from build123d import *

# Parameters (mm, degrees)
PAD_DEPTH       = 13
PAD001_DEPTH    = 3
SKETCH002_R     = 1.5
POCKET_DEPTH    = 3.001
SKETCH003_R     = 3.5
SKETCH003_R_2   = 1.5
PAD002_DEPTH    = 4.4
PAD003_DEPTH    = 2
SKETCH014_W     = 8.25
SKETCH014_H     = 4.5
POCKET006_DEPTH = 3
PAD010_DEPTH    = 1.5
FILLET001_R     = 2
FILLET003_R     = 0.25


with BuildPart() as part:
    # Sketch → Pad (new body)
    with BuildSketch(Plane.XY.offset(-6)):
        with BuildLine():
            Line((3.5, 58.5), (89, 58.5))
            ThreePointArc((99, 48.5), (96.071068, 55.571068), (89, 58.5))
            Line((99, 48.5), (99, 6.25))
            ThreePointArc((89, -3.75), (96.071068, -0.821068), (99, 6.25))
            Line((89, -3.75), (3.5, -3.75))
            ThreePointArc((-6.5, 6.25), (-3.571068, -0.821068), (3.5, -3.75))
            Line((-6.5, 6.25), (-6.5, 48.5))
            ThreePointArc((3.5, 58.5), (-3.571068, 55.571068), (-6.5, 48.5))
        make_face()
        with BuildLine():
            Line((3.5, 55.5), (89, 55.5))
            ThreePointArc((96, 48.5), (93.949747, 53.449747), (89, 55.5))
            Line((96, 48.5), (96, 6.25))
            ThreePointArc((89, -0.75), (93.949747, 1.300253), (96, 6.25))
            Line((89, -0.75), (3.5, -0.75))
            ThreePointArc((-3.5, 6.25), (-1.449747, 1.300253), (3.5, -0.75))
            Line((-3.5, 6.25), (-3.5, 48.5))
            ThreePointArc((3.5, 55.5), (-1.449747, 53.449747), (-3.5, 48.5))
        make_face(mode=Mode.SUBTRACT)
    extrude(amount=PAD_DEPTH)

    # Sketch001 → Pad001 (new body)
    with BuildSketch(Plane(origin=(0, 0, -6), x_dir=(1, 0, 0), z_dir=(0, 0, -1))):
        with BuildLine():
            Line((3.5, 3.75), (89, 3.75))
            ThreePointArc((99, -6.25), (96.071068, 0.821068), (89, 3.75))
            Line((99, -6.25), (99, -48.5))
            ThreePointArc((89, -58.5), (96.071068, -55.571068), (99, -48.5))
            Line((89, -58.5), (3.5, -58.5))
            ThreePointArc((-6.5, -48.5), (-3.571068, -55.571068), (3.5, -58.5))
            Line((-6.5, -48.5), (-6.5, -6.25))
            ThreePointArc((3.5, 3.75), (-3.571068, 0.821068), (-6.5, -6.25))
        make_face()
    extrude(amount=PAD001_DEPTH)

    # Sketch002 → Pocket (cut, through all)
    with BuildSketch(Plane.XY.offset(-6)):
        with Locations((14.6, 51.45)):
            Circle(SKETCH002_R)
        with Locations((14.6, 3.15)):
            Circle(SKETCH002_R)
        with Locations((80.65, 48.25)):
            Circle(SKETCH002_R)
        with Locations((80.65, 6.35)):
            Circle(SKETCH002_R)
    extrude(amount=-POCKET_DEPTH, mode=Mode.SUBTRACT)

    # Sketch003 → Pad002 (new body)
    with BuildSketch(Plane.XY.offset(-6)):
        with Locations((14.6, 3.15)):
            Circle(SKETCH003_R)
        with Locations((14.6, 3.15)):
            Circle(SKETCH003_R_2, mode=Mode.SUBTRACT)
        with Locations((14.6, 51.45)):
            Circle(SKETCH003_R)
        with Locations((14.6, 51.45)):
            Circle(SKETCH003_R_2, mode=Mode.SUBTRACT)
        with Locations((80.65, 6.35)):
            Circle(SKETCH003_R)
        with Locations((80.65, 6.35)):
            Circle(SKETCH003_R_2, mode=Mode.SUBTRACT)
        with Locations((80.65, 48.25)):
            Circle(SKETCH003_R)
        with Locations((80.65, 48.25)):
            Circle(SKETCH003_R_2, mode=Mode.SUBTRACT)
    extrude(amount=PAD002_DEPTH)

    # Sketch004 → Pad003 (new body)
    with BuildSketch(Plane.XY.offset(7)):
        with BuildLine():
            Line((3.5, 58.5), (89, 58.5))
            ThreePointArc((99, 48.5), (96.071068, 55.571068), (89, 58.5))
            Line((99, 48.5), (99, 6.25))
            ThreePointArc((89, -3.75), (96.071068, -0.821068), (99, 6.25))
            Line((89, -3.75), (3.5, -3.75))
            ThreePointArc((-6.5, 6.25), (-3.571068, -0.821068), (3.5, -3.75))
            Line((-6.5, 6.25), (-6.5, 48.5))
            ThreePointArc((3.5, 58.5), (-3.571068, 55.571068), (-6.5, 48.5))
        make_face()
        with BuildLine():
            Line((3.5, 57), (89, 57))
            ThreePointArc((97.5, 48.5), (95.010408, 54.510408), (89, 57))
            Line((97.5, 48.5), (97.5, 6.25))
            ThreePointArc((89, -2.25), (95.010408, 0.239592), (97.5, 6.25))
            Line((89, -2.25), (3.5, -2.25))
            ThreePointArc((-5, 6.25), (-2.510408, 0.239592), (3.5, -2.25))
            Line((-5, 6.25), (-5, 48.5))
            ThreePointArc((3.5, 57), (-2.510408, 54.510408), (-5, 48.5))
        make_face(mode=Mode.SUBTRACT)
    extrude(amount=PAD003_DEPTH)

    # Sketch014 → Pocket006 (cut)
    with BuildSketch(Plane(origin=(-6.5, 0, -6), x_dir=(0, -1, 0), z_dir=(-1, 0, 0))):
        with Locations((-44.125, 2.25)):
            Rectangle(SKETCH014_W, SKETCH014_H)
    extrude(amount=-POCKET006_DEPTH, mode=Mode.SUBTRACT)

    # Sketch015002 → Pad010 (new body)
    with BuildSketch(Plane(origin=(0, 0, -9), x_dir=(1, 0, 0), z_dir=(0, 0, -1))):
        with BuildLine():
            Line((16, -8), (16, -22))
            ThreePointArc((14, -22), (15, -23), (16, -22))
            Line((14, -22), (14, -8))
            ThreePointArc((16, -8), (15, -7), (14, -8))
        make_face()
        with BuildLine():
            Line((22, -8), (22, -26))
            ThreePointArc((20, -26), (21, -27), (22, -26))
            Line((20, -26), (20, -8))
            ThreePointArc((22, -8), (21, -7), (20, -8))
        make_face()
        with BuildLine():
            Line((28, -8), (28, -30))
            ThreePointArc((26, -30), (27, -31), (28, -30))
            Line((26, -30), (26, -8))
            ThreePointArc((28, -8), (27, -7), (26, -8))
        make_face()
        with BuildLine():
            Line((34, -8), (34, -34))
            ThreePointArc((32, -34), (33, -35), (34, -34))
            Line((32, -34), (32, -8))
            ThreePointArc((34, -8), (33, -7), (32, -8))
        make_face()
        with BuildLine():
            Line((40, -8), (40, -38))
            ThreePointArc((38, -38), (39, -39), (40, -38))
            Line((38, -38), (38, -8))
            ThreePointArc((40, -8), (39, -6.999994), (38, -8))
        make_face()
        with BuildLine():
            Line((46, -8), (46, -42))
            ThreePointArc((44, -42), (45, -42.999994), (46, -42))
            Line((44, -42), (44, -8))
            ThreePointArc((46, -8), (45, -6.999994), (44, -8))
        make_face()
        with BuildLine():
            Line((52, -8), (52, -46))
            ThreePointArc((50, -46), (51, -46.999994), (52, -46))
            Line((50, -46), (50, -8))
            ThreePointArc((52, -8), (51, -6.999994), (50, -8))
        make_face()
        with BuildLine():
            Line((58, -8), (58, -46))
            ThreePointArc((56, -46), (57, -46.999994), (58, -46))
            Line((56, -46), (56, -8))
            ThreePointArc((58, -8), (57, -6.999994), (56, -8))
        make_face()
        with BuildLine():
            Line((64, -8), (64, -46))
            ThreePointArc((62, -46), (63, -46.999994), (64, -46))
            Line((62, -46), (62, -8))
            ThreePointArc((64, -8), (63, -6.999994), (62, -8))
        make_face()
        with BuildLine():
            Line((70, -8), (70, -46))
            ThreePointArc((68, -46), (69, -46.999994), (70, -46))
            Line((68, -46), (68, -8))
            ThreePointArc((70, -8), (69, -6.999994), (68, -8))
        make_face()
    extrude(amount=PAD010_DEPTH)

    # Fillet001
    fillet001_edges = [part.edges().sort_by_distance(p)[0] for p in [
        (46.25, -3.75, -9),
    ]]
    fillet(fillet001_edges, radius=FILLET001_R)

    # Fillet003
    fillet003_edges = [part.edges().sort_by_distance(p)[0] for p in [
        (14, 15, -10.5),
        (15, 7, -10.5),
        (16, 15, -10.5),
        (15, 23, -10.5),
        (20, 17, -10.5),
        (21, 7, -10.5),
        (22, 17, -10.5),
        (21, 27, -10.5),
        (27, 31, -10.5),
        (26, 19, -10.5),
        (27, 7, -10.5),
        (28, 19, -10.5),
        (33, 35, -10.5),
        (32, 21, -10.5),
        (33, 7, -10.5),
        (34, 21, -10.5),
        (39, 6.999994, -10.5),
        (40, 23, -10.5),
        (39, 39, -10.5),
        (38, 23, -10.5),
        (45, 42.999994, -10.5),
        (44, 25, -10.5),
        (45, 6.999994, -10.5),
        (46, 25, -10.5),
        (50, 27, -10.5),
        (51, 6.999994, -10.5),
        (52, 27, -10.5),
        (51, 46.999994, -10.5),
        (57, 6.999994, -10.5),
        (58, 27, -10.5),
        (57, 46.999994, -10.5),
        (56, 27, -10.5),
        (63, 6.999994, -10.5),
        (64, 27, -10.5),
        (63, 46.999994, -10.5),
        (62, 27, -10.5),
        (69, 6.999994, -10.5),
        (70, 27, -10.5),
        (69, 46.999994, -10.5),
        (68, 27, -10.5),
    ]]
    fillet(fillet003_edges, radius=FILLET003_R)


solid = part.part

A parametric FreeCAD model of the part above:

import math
import FreeCAD as App
import Part
import Sketcher
from FreeCAD import Vector
Q = App.Units.Quantity


def edges_at(feature, points):
    """Names of the edges that pass closest to the given points."""
    edges = feature.Shape.Edges
    near = lambda p: min(range(len(edges)), key=lambda i: edges[i].distToShape(Part.Vertex(*p))[0])
    return sorted({f"Edge{near(p) + 1}" for p in points})


def add_polygon(sketch, points):
    """Adds a closed chain of lines whose ends are joined by coincident constraints."""
    first, n = sketch.GeometryCount, len(points)
    for a, b in zip(points, points[1:] + points[:1]):
        sketch.addGeometry(Part.LineSegment(App.Vector(*a, 0), App.Vector(*b, 0)), False)
    for i in range(n):
        sketch.addConstraint(Sketcher.Constraint("Coincident", first + i, 2, first + (i + 1) % n, 1))

doc = App.newDocument("Part")
body = doc.addObject("PartDesign::Body", "Body")

# Sketch on XY plane
sketch1 = body.newObject("Sketcher::SketchObject", "Sketch")
sketch1.AttachmentSupport = (doc.getObject("XY_Plane"), [""])
sketch1.MapMode = "FlatFace"
sketch1.AttachmentOffset = App.Placement(Vector(0, 0, -6), App.Rotation())
sketch1.addGeometry([
    Part.LineSegment(Vector(89, 58, 0), Vector(4, 58, 0)),  # 0
    Part.ArcOfCircle(Part.Circle(Vector(3, 49, 0), Vector(0, 0, 1), 10), math.radians(90), math.radians(180)),  # 1
    Part.LineSegment(Vector(-6, 48, 0), Vector(-6, 6, 0)),  # 2
    Part.ArcOfCircle(Part.Circle(Vector(3, 6, 0), Vector(0, 0, 1), 10), math.radians(180), math.radians(270)),  # 3
    Part.LineSegment(Vector(4, -4, 0), Vector(89, -4, 0)),  # 4
    Part.ArcOfCircle(Part.Circle(Vector(89, 6, 0), Vector(0, 0, 1), 10), math.radians(-90), math.radians(0)),  # 5
    Part.LineSegment(Vector(99, 6, 0), Vector(99, 48, 0)),  # 6
    Part.ArcOfCircle(Part.Circle(Vector(89, 49, 0), Vector(0, 0, 1), 10), math.radians(0), math.radians(90)),  # 7
    Part.LineSegment(Vector(4, 56, 0), Vector(89, 56, 0)),  # 8
    Part.ArcOfCircle(Part.Circle(Vector(89, 48, 0), Vector(0, 0, 1), 7), math.radians(0), math.radians(90)),  # 9
    Part.LineSegment(Vector(96, 48, 0), Vector(96, 6, 0)),  # 10
    Part.ArcOfCircle(Part.Circle(Vector(89, 6, 0), Vector(0, 0, 1), 7), math.radians(-90), math.radians(0)),  # 11
    Part.LineSegment(Vector(89, -1, 0), Vector(4, -1, 0)),  # 12
    Part.ArcOfCircle(Part.Circle(Vector(4, 6, 0), Vector(0, 0, 1), 7), math.radians(-180), math.radians(-90)),  # 13
    Part.LineSegment(Vector(-4, 6, 0), Vector(-4, 48, 0)),  # 14
    Part.ArcOfCircle(Part.Circle(Vector(4, 48, 0), Vector(0, 0, 1), 7), math.radians(90), math.radians(180)),  # 15
], False)
sketch1.addConstraint([
    Sketcher.Constraint("Tangent", 0, 2, 1, 1),
    Sketcher.Constraint("Tangent", 1, 2, 2, 1),
    Sketcher.Constraint("Tangent", 2, 2, 3, 1),
    Sketcher.Constraint("Tangent", 3, 2, 4, 1),
    Sketcher.Constraint("Tangent", 4, 2, 5, 1),
    Sketcher.Constraint("Tangent", 5, 2, 6, 1),
    Sketcher.Constraint("Tangent", 6, 2, 7, 1),
    Sketcher.Constraint("Tangent", 7, 2, 0, 1),
    Sketcher.Constraint("Tangent", 8, 2, 9, 2),
    Sketcher.Constraint("Tangent", 9, 1, 10, 1),
    Sketcher.Constraint("Tangent", 10, 2, 11, 2),
    Sketcher.Constraint("Tangent", 11, 1, 12, 1),
    Sketcher.Constraint("Tangent", 12, 2, 13, 2),
    Sketcher.Constraint("Tangent", 13, 1, 14, 1),
    Sketcher.Constraint("Tangent", 14, 2, 15, 2),
    Sketcher.Constraint("Tangent", 15, 1, 8, 1),
    Sketcher.Constraint("Horizontal", 0),
    Sketcher.Constraint("Vertical", 2),
    Sketcher.Constraint("Horizontal", 4),
    Sketcher.Constraint("Vertical", 6),
    Sketcher.Constraint("Horizontal", 8),
    Sketcher.Constraint("Vertical", 10),
    Sketcher.Constraint("Horizontal", 12),
    Sketcher.Constraint("Vertical", 14),
    Sketcher.Constraint("Coincident", 9, 3, 7, 3),
    Sketcher.Constraint("Coincident", 11, 3, 5, 3),
    Sketcher.Constraint("Coincident", 13, 3, 3, 3),
    Sketcher.Constraint("Equal", 1, 3),
    Sketcher.Constraint("Equal", 3, 5),
    Sketcher.Constraint("Equal", 5, 7),
    Sketcher.Constraint("Equal", 13, 15),
    Sketcher.Constraint("Radius", 1, Q("9.999999 mm")),
    Sketcher.Constraint("Radius", 9, Q("7.000002 mm")),
    Sketcher.Constraint("DistanceX", 0, 2, 0, 1, Q("85.5 mm")),
    Sketcher.Constraint("DistanceX", -1, 1, 5, 3, Q("89.000001 mm")),
    Sketcher.Constraint("DistanceY", 2, 2, 2, 1, Q("42.25 mm")),
    Sketcher.Constraint("DistanceY", -1, 1, 1, 3, Q("48.500001 mm")),
])
pad1 = body.newObject("PartDesign::Pad", "Pad")
pad1.Profile = sketch1
pad1.Length = 13

# Sketch on XY plane
sketch2 = body.newObject("Sketcher::SketchObject", "Sketch001")
sketch2.AttachmentSupport = (doc.getObject("XY_Plane"), [""])
sketch2.MapMode = "FlatFace"
sketch2.AttachmentOffset = App.Placement(Vector(0, 0, -6), App.Rotation())
sketch2.addGeometry([
    Part.LineSegment(Vector(89, -4, 0), Vector(4, -4, 0)),  # 0
    Part.ArcOfCircle(Part.Circle(Vector(3, 6, 0), Vector(0, 0, 1), 10), math.radians(180), math.radians(270)),  # 1
    Part.LineSegment(Vector(-6, 6, 0), Vector(-6, 48, 0)),  # 2
    Part.ArcOfCircle(Part.Circle(Vector(3, 49, 0), Vector(0, 0, 1), 10), math.radians(90), math.radians(180)),  # 3
    Part.LineSegment(Vector(4, 58, 0), Vector(89, 58, 0)),  # 4
    Part.ArcOfCircle(Part.Circle(Vector(89, 49, 0), Vector(0, 0, 1), 10), math.radians(0), math.radians(90)),  # 5
    Part.LineSegment(Vector(99, 48, 0), Vector(99, 6, 0)),  # 6
    Part.ArcOfCircle(Part.Circle(Vector(89, 6, 0), Vector(0, 0, 1), 10), math.radians(-90), math.radians(0)),  # 7
], False)
sketch2.addConstraint([
    Sketcher.Constraint("Tangent", 0, 2, 1, 2),
    Sketcher.Constraint("Tangent", 1, 1, 2, 1),
    Sketcher.Constraint("Tangent", 2, 2, 3, 2),
    Sketcher.Constraint("Tangent", 3, 1, 4, 1),
    Sketcher.Constraint("Tangent", 4, 2, 5, 2),
    Sketcher.Constraint("Tangent", 5, 1, 6, 1),
    Sketcher.Constraint("Tangent", 6, 2, 7, 2),
    Sketcher.Constraint("Tangent", 7, 1, 0, 1),
    Sketcher.Constraint("Horizontal", 0),
    Sketcher.Constraint("Vertical", 2),
    Sketcher.Constraint("Horizontal", 4),
    Sketcher.Constraint("Vertical", 6),
    Sketcher.Constraint("Equal", 1, 3),
    Sketcher.Constraint("Equal", 3, 5),
    Sketcher.Constraint("Equal", 5, 7),
    Sketcher.Constraint("Radius", 1, Q("9.999999 mm")),
    Sketcher.Constraint("DistanceX", 0, 2, 0, 1, Q("85.5 mm")),
    Sketcher.Constraint("DistanceX", -1, 1, 5, 3, Q("89.000001 mm")),
    Sketcher.Constraint("DistanceY", 2, 1, 2, 2, Q("42.25 mm")),
    Sketcher.Constraint("DistanceY", -1, 1, 3, 3, Q("48.500001 mm")),
])
pad2 = body.newObject("PartDesign::Pad", "Pad001")
pad2.Profile = sketch2
pad2.Length = 3
pad2.Reversed = True

# Sketch on XY plane
sketch3 = body.newObject("Sketcher::SketchObject", "Sketch002")
sketch3.AttachmentSupport = (doc.getObject("XY_Plane"), [""])
sketch3.MapMode = "FlatFace"
sketch3.AttachmentOffset = App.Placement(Vector(0, 0, -6), App.Rotation())
sketch3.addGeometry([
    Part.Circle(Vector(14.6, 51.5, 0), Vector(0, 0, 1), 1.5),
    Part.Circle(Vector(14.6, 3.1, 0), Vector(0, 0, 1), 1.5),
    Part.Circle(Vector(80.7, 48.2, 0), Vector(0, 0, 1), 1.5),
    Part.Circle(Vector(80.7, 6.3, 0), Vector(0, 0, 1), 1.5),
], False)
sketch3.addConstraint([
    Sketcher.Constraint("Equal", 0, 1),
    Sketcher.Constraint("Equal", 1, 2),
    Sketcher.Constraint("Equal", 2, 3),
    Sketcher.Constraint("Vertical", 0, 3, 1, 3),
    Sketcher.Constraint("Vertical", 2, 3, 3, 3),
    Sketcher.Constraint("Diameter", 0, Q("3 mm")),
    Sketcher.Constraint("DistanceX", -1, 1, 0, 3, Q("14.6 mm")),
    Sketcher.Constraint("DistanceY", 1, 3, 0, 3, Q("48.3 mm")),
    Sketcher.Constraint("DistanceY", 2, 3, 0, 3, Q("3.2 mm")),
    Sketcher.Constraint("DistanceY", 3, 3, 2, 3, Q("41.9 mm")),
    Sketcher.Constraint("DistanceY", -1, 1, 0, 3, Q("51.45 mm")),
    Sketcher.Constraint("DistanceX", -1, 1, 2, 3, Q("80.65 mm")),
])
pocket1 = body.newObject("PartDesign::Pocket", "Pocket")
pocket1.Profile = sketch3
pocket1.Type = "ThroughAll"

# Sketch on XY plane
sketch4 = body.newObject("Sketcher::SketchObject", "Sketch003")
sketch4.AttachmentSupport = (doc.getObject("XY_Plane"), [""])
sketch4.MapMode = "FlatFace"
sketch4.AttachmentOffset = App.Placement(Vector(0, 0, -6), App.Rotation())
sketch4.addGeometry([
    Part.Circle(Vector(14.6, 3.1, 0), Vector(0, 0, 1), 3.5),  # 0
    Part.Circle(Vector(14.6, 3.1, 0), Vector(0, 0, 1), 1.5),  # 1
    Part.Circle(Vector(14.6, 51.5, 0), Vector(0, 0, 1), 3.5),  # 2
    Part.Circle(Vector(14.6, 51.5, 0), Vector(0, 0, 1), 1.5),  # 3
    Part.Circle(Vector(80.7, 6.3, 0), Vector(0, 0, 1), 3.5),  # 4
    Part.Circle(Vector(80.7, 6.3, 0), Vector(0, 0, 1), 1.5),  # 5
    Part.Circle(Vector(80.7, 48.2, 0), Vector(0, 0, 1), 3.5),  # 6
    Part.Circle(Vector(80.7, 48.2, 0), Vector(0, 0, 1), 1.5),  # 7
], False)
sketch4.addConstraint([
    Sketcher.Constraint("Coincident", 1, 3, 0, 3),
    Sketcher.Constraint("Coincident", 3, 3, 2, 3),
    Sketcher.Constraint("Coincident", 5, 3, 4, 3),
    Sketcher.Constraint("Coincident", 7, 3, 6, 3),
    Sketcher.Constraint("Equal", 0, 2),
    Sketcher.Constraint("Equal", 1, 3),
    Sketcher.Constraint("Equal", 2, 4),
    Sketcher.Constraint("Equal", 3, 5),
    Sketcher.Constraint("Equal", 4, 6),
    Sketcher.Constraint("Equal", 5, 7),
    Sketcher.Constraint("Vertical", 1, 3, 2, 3),
    Sketcher.Constraint("Vertical", 5, 3, 6, 3),
    Sketcher.Constraint("Diameter", 0, Q("7 mm")),
    Sketcher.Constraint("Diameter", 1, Q("3 mm")),
    Sketcher.Constraint("DistanceX", -1, 1, 0, 3, Q("14.6 mm")),
    Sketcher.Constraint("DistanceY", 0, 3, 2, 3, Q("48.3 mm")),
    Sketcher.Constraint("DistanceY", 0, 3, 4, 3, Q("3.2 mm")),
    Sketcher.Constraint("DistanceY", 4, 3, 6, 3, Q("41.9 mm")),
    Sketcher.Constraint("DistanceY", -1, 1, 0, 3, Q("3.15 mm")),
    Sketcher.Constraint("DistanceX", -1, 1, 4, 3, Q("80.65 mm")),
])
pad3 = body.newObject("PartDesign::Pad", "Pad002")
pad3.Profile = sketch4
pad3.Length = 4.4

# Sketch on XY plane
sketch5 = body.newObject("Sketcher::SketchObject", "Sketch004")
sketch5.AttachmentSupport = (doc.getObject("XY_Plane"), [""])
sketch5.MapMode = "FlatFace"
sketch5.AttachmentOffset = App.Placement(Vector(0, 0, 7), App.Rotation())
sketch5.addGeometry([
    Part.LineSegment(Vector(89, 58, 0), Vector(4, 58, 0)),  # 0
    Part.ArcOfCircle(Part.Circle(Vector(3, 49, 0), Vector(0, 0, 1), 10), math.radians(90), math.radians(180)),  # 1
    Part.LineSegment(Vector(-6, 48, 0), Vector(-6, 6, 0)),  # 2
    Part.ArcOfCircle(Part.Circle(Vector(3, 6, 0), Vector(0, 0, 1), 10), math.radians(180), math.radians(270)),  # 3
    Part.LineSegment(Vector(4, -4, 0), Vector(89, -4, 0)),  # 4
    Part.ArcOfCircle(Part.Circle(Vector(89, 6, 0), Vector(0, 0, 1), 10), math.radians(-90), math.radians(0)),  # 5
    Part.LineSegment(Vector(99, 6, 0), Vector(99, 48, 0)),  # 6
    Part.ArcOfCircle(Part.Circle(Vector(89, 49, 0), Vector(0, 0, 1), 10), math.radians(0), math.radians(90)),  # 7
    Part.LineSegment(Vector(4, 57, 0), Vector(89, 57, 0)),  # 8
    Part.ArcOfCircle(Part.Circle(Vector(89, 49, 0), Vector(0, 0, 1), 8), math.radians(0), math.radians(90)),  # 9
    Part.LineSegment(Vector(98, 48, 0), Vector(98, 6, 0)),  # 10
    Part.ArcOfCircle(Part.Circle(Vector(89, 6, 0), Vector(0, 0, 1), 8), math.radians(-90), math.radians(0)),  # 11
    Part.LineSegment(Vector(89, -2, 0), Vector(4, -2, 0)),  # 12
    Part.ArcOfCircle(Part.Circle(Vector(3, 6, 0), Vector(0, 0, 1), 8), math.radians(180), math.radians(270)),  # 13
    Part.LineSegment(Vector(-5, 6, 0), Vector(-5, 48, 0)),  # 14
    Part.ArcOfCircle(Part.Circle(Vector(3, 49, 0), Vector(0, 0, 1), 8), math.radians(90), math.radians(180)),  # 15
], False)
sketch5.addConstraint([
    Sketcher.Constraint("Tangent", 0, 2, 1, 1),
    Sketcher.Constraint("Tangent", 1, 2, 2, 1),
    Sketcher.Constraint("Tangent", 2, 2, 3, 1),
    Sketcher.Constraint("Tangent", 3, 2, 4, 1),
    Sketcher.Constraint("Tangent", 4, 2, 5, 1),
    Sketcher.Constraint("Tangent", 5, 2, 6, 1),
    Sketcher.Constraint("Tangent", 6, 2, 7, 1),
    Sketcher.Constraint("Tangent", 7, 2, 0, 1),
    Sketcher.Constraint("Tangent", 8, 2, 9, 2),
    Sketcher.Constraint("Tangent", 9, 1, 10, 1),
    Sketcher.Constraint("Tangent", 10, 2, 11, 2),
    Sketcher.Constraint("Tangent", 11, 1, 12, 1),
    Sketcher.Constraint("Tangent", 12, 2, 13, 2),
    Sketcher.Constraint("Tangent", 13, 1, 14, 1),
    Sketcher.Constraint("Tangent", 14, 2, 15, 2),
    Sketcher.Constraint("Tangent", 15, 1, 8, 1),
    Sketcher.Constraint("Horizontal", 0),
    Sketcher.Constraint("Vertical", 2),
    Sketcher.Constraint("Horizontal", 4),
    Sketcher.Constraint("Vertical", 6),
    Sketcher.Constraint("Horizontal", 8),
    Sketcher.Constraint("Vertical", 10),
    Sketcher.Constraint("Horizontal", 12),
    Sketcher.Constraint("Vertical", 14),
    Sketcher.Constraint("Coincident", 9, 3, 7, 3),
    Sketcher.Constraint("Coincident", 11, 3, 5, 3),
    Sketcher.Constraint("Coincident", 13, 3, 3, 3),
    Sketcher.Constraint("Equal", 1, 3),
    Sketcher.Constraint("Equal", 3, 5),
    Sketcher.Constraint("Equal", 5, 7),
    Sketcher.Constraint("Equal", 13, 15),
    Sketcher.Constraint("Radius", 1, Q("9.999999 mm")),
    Sketcher.Constraint("Radius", 9, Q("8.499999 mm")),
    Sketcher.Constraint("DistanceX", 0, 2, 0, 1, Q("85.5 mm")),
    Sketcher.Constraint("DistanceX", -1, 1, 5, 3, Q("89.000001 mm")),
    Sketcher.Constraint("DistanceY", -1, 1, 8, 2, Q("57 mm")),
    Sketcher.Constraint("DistanceY", 2, 2, 2, 1, Q("42.25 mm")),
])
pad4 = body.newObject("PartDesign::Pad", "Pad003")
pad4.Profile = sketch5
pad4.Length = 2

# Sketch on YZ plane
sketch6 = body.newObject("Sketcher::SketchObject", "Sketch005")
sketch6.AttachmentSupport = (doc.getObject("YZ_Plane"), [""])
sketch6.MapMode = "FlatFace"
sketch6.AttachmentOffset = App.Placement(Vector(0, 0, -6.5), App.Rotation())
add_polygon(sketch6, [(48.2, -1.5), (48.2, -6), (40, -6), (40, -1.5)])  # lines 0-3
sketch6.addConstraint([
    Sketcher.Constraint("Vertical", 0),
    Sketcher.Constraint("Horizontal", 1),
    Sketcher.Constraint("Vertical", 2),
    Sketcher.Constraint("Horizontal", 3),
    Sketcher.Constraint("DistanceY", 0, 2, 0, 1, Q("4.5 mm")),
    Sketcher.Constraint("DistanceY", 0, 2, -1, 1, Q("6 mm")),
    Sketcher.Constraint("DistanceX", -1, 1, 1, 2, Q("40 mm")),
    Sketcher.Constraint("DistanceX", 1, 2, 1, 1, Q("8.25 mm")),
])
pocket2 = body.newObject("PartDesign::Pocket", "Pocket001")
pocket2.Profile = sketch6
pocket2.Length = 3
pocket2.Reversed = True

# Sketch on XY plane
sketch7 = body.newObject("Sketcher::SketchObject", "Sketch006")
sketch7.AttachmentSupport = (doc.getObject("XY_Plane"), [""])
sketch7.MapMode = "FlatFace"
sketch7.AttachmentOffset = App.Placement(Vector(0, 0, -9), App.Rotation())
sketch7.addGeometry([
    Part.LineSegment(Vector(16, 22, 0), Vector(16, 8, 0)),  # 0
    Part.ArcOfCircle(Part.Circle(Vector(15, 8, 0), Vector(0, 0, 1), 1), math.radians(180), math.radians(360)),  # 1
    Part.LineSegment(Vector(14, 8, 0), Vector(14, 22, 0)),  # 2
    Part.ArcOfCircle(Part.Circle(Vector(15, 22, 0), Vector(0, 0, 1), 1), math.radians(0), math.radians(180)),  # 3
    Part.LineSegment(Vector(22, 26, 0), Vector(22, 8, 0)),  # 4
    Part.ArcOfCircle(Part.Circle(Vector(21, 8, 0), Vector(0, 0, 1), 1), math.radians(180), math.radians(360)),  # 5
    Part.LineSegment(Vector(20, 8, 0), Vector(20, 26, 0)),  # 6
    Part.ArcOfCircle(Part.Circle(Vector(21, 26, 0), Vector(0, 0, 1), 1), math.radians(0), math.radians(180)),  # 7
    Part.LineSegment(Vector(28, 30, 0), Vector(28, 8, 0)),  # 8
    Part.ArcOfCircle(Part.Circle(Vector(27, 8, 0), Vector(0, 0, 1), 1), math.radians(180), math.radians(360)),  # 9
    Part.LineSegment(Vector(26, 8, 0), Vector(26, 30, 0)),  # 10
    Part.ArcOfCircle(Part.Circle(Vector(27, 30, 0), Vector(0, 0, 1), 1), math.radians(0), math.radians(180)),  # 11
    Part.LineSegment(Vector(34, 34, 0), Vector(34, 8, 0)),  # 12
    Part.ArcOfCircle(Part.Circle(Vector(33, 8, 0), Vector(0, 0, 1), 1), math.radians(180), math.radians(360)),  # 13
    Part.LineSegment(Vector(32, 8, 0), Vector(32, 34, 0)),  # 14
    Part.ArcOfCircle(Part.Circle(Vector(33, 34, 0), Vector(0, 0, 1), 1), math.radians(0), math.radians(180)),  # 15
    Part.LineSegment(Vector(40, 38, 0), Vector(40, 8, 0)),  # 16
    Part.ArcOfCircle(Part.Circle(Vector(39, 8, 0), Vector(0, 0, 1), 1), math.radians(180), math.radians(360)),  # 17
    Part.LineSegment(Vector(38, 8, 0), Vector(38, 38, 0)),  # 18
    Part.ArcOfCircle(Part.Circle(Vector(39, 38, 0), Vector(0, 0, 1), 1), math.radians(0), math.radians(180)),  # 19
    Part.LineSegment(Vector(46, 42, 0), Vector(46, 8, 0)),  # 20
    Part.ArcOfCircle(Part.Circle(Vector(45, 8, 0), Vector(0, 0, 1), 1), math.radians(180), math.radians(360)),  # 21
    Part.LineSegment(Vector(44, 8, 0), Vector(44, 42, 0)),  # 22
    Part.ArcOfCircle(Part.Circle(Vector(45, 42, 0), Vector(0, 0, 1), 1), math.radians(0), math.radians(180)),  # 23
    Part.LineSegment(Vector(52, 46, 0), Vector(52, 8, 0)),  # 24
    Part.ArcOfCircle(Part.Circle(Vector(51, 8, 0), Vector(0, 0, 1), 1), math.radians(180), math.radians(360)),  # 25
    Part.LineSegment(Vector(50, 8, 0), Vector(50, 46, 0)),  # 26
    Part.ArcOfCircle(Part.Circle(Vector(51, 46, 0), Vector(0, 0, 1), 1), math.radians(0), math.radians(180)),  # 27
    Part.LineSegment(Vector(58, 46, 0), Vector(58, 8, 0)),  # 28
    Part.ArcOfCircle(Part.Circle(Vector(57, 8, 0), Vector(0, 0, 1), 1), math.radians(180), math.radians(360)),  # 29
    Part.LineSegment(Vector(56, 8, 0), Vector(56, 46, 0)),  # 30
    Part.ArcOfCircle(Part.Circle(Vector(57, 46, 0), Vector(0, 0, 1), 1), math.radians(0), math.radians(180)),  # 31
    Part.LineSegment(Vector(64, 46, 0), Vector(64, 8, 0)),  # 32
    Part.ArcOfCircle(Part.Circle(Vector(63, 8, 0), Vector(0, 0, 1), 1), math.radians(180), math.radians(360)),  # 33
    Part.LineSegment(Vector(62, 8, 0), Vector(62, 46, 0)),  # 34
    Part.ArcOfCircle(Part.Circle(Vector(63, 46, 0), Vector(0, 0, 1), 1), math.radians(0), math.radians(180)),  # 35
    Part.LineSegment(Vector(70, 46, 0), Vector(70, 8, 0)),  # 36
    Part.ArcOfCircle(Part.Circle(Vector(69, 8, 0), Vector(0, 0, 1), 1), math.radians(180), math.radians(360)),  # 37
    Part.LineSegment(Vector(68, 8, 0), Vector(68, 46, 0)),  # 38
    Part.ArcOfCircle(Part.Circle(Vector(69, 46, 0), Vector(0, 0, 1), 1), math.radians(0), math.radians(180)),  # 39
], False)
sketch7.addConstraint([
    Sketcher.Constraint("Tangent", 0, 2, 1, 2),
    Sketcher.Constraint("Tangent", 1, 1, 2, 1),
    Sketcher.Constraint("Tangent", 2, 2, 3, 2),
    Sketcher.Constraint("Tangent", 3, 1, 0, 1),
    Sketcher.Constraint("Tangent", 4, 2, 5, 2),
    Sketcher.Constraint("Tangent", 5, 1, 6, 1),
    Sketcher.Constraint("Tangent", 6, 2, 7, 2),
    Sketcher.Constraint("Tangent", 7, 1, 4, 1),
    Sketcher.Constraint("Tangent", 8, 2, 9, 2),
    Sketcher.Constraint("Tangent", 9, 1, 10, 1),
    Sketcher.Constraint("Tangent", 10, 2, 11, 2),
    Sketcher.Constraint("Tangent", 11, 1, 8, 1),
    Sketcher.Constraint("Tangent", 12, 2, 13, 2),
    Sketcher.Constraint("Tangent", 13, 1, 14, 1),
    Sketcher.Constraint("Tangent", 14, 2, 15, 2),
    Sketcher.Constraint("Tangent", 15, 1, 12, 1),
    Sketcher.Constraint("Coincident", 16, 2, 17, 2),
    Sketcher.Constraint("Coincident", 17, 1, 18, 1),
    Sketcher.Constraint("Tangent", 18, 2, 19, 2),
    Sketcher.Constraint("Tangent", 19, 1, 16, 1),
    Sketcher.Constraint("Coincident", 20, 2, 21, 2),
    Sketcher.Constraint("Coincident", 21, 1, 22, 1),
    Sketcher.Constraint("Coincident", 22, 2, 23, 2),
    Sketcher.Constraint("Coincident", 23, 1, 20, 1),
    Sketcher.Constraint("Coincident", 24, 2, 25, 2),
    Sketcher.Constraint("Coincident", 25, 1, 26, 1),
    Sketcher.Constraint("Coincident", 26, 2, 27, 2),
    Sketcher.Constraint("Coincident", 27, 1, 24, 1),
    Sketcher.Constraint("Coincident", 28, 2, 29, 2),
    Sketcher.Constraint("Coincident", 29, 1, 30, 1),
    Sketcher.Constraint("Coincident", 30, 2, 31, 2),
    Sketcher.Constraint("Coincident", 31, 1, 28, 1),
    Sketcher.Constraint("Coincident", 32, 2, 33, 2),
    Sketcher.Constraint("Coincident", 33, 1, 34, 1),
    Sketcher.Constraint("Coincident", 34, 2, 35, 2),
    Sketcher.Constraint("Coincident", 35, 1, 32, 1),
    Sketcher.Constraint("Coincident", 36, 2, 37, 2),
    Sketcher.Constraint("Coincident", 37, 1, 38, 1),
    Sketcher.Constraint("Coincident", 38, 2, 39, 2),
    Sketcher.Constraint("Coincident", 39, 1, 36, 1),
    Sketcher.Constraint("Vertical", 0),
    Sketcher.Constraint("Vertical", 2),
    Sketcher.Constraint("Vertical", 4),
    Sketcher.Constraint("Vertical", 6),
    Sketcher.Constraint("Vertical", 8),
    Sketcher.Constraint("Vertical", 10),
    Sketcher.Constraint("Vertical", 12),
    Sketcher.Constraint("Vertical", 14),
    Sketcher.Constraint("Vertical", 16),
    Sketcher.Constraint("Vertical", 18),
    Sketcher.Constraint("Vertical", 20),
    Sketcher.Constraint("Vertical", 22),
    Sketcher.Constraint("Vertical", 24),
    Sketcher.Constraint("Vertical", 26),
    Sketcher.Constraint("Vertical", 28),
    Sketcher.Constraint("Vertical", 30),
    Sketcher.Constraint("Vertical", 32),
    Sketcher.Constraint("Vertical", 34),
    Sketcher.Constraint("Vertical", 36),
    Sketcher.Constraint("Vertical", 38),
    Sketcher.Constraint("Equal", 3, 5),
    Sketcher.Constraint("Equal", 7, 9),
    Sketcher.Constraint("Equal", 11, 13),
    Sketcher.Constraint("Equal", 15, 17),
    Sketcher.Constraint("Equal", 19, 21),
    Sketcher.Constraint("Equal", 23, 25),
    Sketcher.Constraint("Equal", 27, 29),
    Sketcher.Constraint("Equal", 31, 33),
    Sketcher.Constraint("Equal", 35, 37),
    Sketcher.Constraint("Horizontal", 1, 3, 5, 3),
    Sketcher.Constraint("Horizontal", 5, 3, 9, 3),
    Sketcher.Constraint("Horizontal", 9, 3, 13, 3),
    Sketcher.Constraint("Horizontal", 17, 3, 21, 3),
    Sketcher.Constraint("Horizontal", 21, 3, 25, 3),
    Sketcher.Constraint("Horizontal", 25, 3, 29, 3),
    Sketcher.Constraint("Horizontal", 27, 3, 31, 3),
    Sketcher.Constraint("Horizontal", 29, 3, 33, 3),
    Sketcher.Constraint("Horizontal", 31, 3, 35, 3),
    Sketcher.Constraint("Horizontal", 33, 3, 37, 3),
    Sketcher.Constraint("Horizontal", 35, 3, 39, 3),
    Sketcher.Constraint("Horizontal", 13, 1, 16, 2),
    Sketcher.Constraint("Horizontal", 16, 2, 17, 1),
    Sketcher.Constraint("Horizontal", 17, 1, 20, 2),
    Sketcher.Constraint("Horizontal", 20, 2, 21, 1),
    Sketcher.Constraint("Horizontal", 22, 2, 23, 1),
    Sketcher.Constraint("Horizontal", 21, 1, 24, 2),
    Sketcher.Constraint("Horizontal", 24, 2, 25, 1),
    Sketcher.Constraint("Horizontal", 26, 2, 27, 1),
    Sketcher.Constraint("Horizontal", 25, 1, 28, 2),
    Sketcher.Constraint("Horizontal", 28, 2, 29, 1),
    Sketcher.Constraint("Horizontal", 27, 1, 30, 2),
    Sketcher.Constraint("Horizontal", 30, 2, 31, 1),
    Sketcher.Constraint("Horizontal", 29, 1, 32, 2),
    Sketcher.Constraint("Horizontal", 32, 2, 33, 1),
    Sketcher.Constraint("Horizontal", 31, 1, 34, 2),
    Sketcher.Constraint("Horizontal", 34, 2, 35, 1),
    Sketcher.Constraint("Horizontal", 33, 1, 36, 2),
    Sketcher.Constraint("Horizontal", 36, 2, 37, 1),
    Sketcher.Constraint("Horizontal", 35, 1, 38, 2),
    Sketcher.Constraint("Horizontal", 38, 2, 39, 1),
    Sketcher.Constraint("Radius", 1, Q("1 mm")),
    Sketcher.Constraint("DistanceY", 0, 2, 0, 1, Q("14 mm")),
    Sketcher.Constraint("DistanceY", 4, 2, 4, 1, Q("18 mm")),
    Sketcher.Constraint("DistanceY", 8, 2, 8, 1, Q("22 mm")),
    Sketcher.Constraint("DistanceY", 12, 2, 12, 1, Q("26 mm")),
    Sketcher.Constraint("DistanceY", 16, 2, 16, 1, Q("30 mm")),
    Sketcher.Constraint("DistanceY", 20, 2, 20, 1, Q("34 mm")),
    Sketcher.Constraint("DistanceY", 24, 2, 24, 1, Q("38 mm")),
    Sketcher.Constraint("DistanceX", -1, 1, 1, 3, Q("15 mm")),
    Sketcher.Constraint("DistanceY", -1, 1, 1, 3, Q("8 mm")),
    Sketcher.Constraint("DistanceX", -1, 1, 5, 3, Q("21 mm")),
    Sketcher.Constraint("DistanceX", -1, 1, 9, 3, Q("27 mm")),
    Sketcher.Constraint("DistanceX", -1, 1, 13, 3, Q("33 mm")),
    Sketcher.Constraint("DistanceX", -1, 1, 17, 3, Q("39 mm")),
    Sketcher.Constraint("DistanceX", -1, 1, 21, 3, Q("45 mm")),
    Sketcher.Constraint("DistanceX", -1, 1, 25, 3, Q("51 mm")),
    Sketcher.Constraint("DistanceX", -1, 1, 29, 3, Q("57 mm")),
    Sketcher.Constraint("DistanceX", -1, 1, 33, 3, Q("63 mm")),
    Sketcher.Constraint("DistanceX", -1, 1, 37, 3, Q("69 mm")),
    Sketcher.Constraint("DistanceY", 21, 3, 23, 3, Q("34 mm")),
    Sketcher.Constraint("DistanceY", 23, 3, 27, 3, Q("4 mm")),
    Sketcher.Constraint("DistanceY", -1, 1, 17, 3, Q("7.999994 mm")),
])
pad5 = body.newObject("PartDesign::Pad", "Pad004")
pad5.Profile = sketch7
pad5.Length = 1.5
pad5.Reversed = True
doc.recompute()

fillet = body.newObject("PartDesign::Fillet", "Fillet")
fillet.Base = (pad5, edges_at(pad5, [(46.25, -3.75, -9)]))
fillet.Radius = 2
doc.recompute()

fillet2 = body.newObject("PartDesign::Fillet", "Fillet001")
fillet2.Base = (fillet, edges_at(fillet, [
    (14, 15, -10.5),
    (15, 7, -10.5),
    (16, 15, -10.5),
    (15, 23, -10.5),
    (20, 17, -10.5),
    (21, 7, -10.5),
    (22, 17, -10.5),
    (21, 27, -10.5),
    (27, 31, -10.5),
    (26, 19, -10.5),
    (27, 7, -10.5),
    (28, 19, -10.5),
    (33, 35, -10.5),
    (32, 21, -10.5),
    (33, 7, -10.5),
    (34, 21, -10.5),
    (39, 7, -10.5),
    (40, 23, -10.5),
    (39, 39, -10.5),
    (38, 23, -10.5),
    (45, 43, -10.5),
    (44, 25, -10.5),
    (45, 7, -10.5),
    (46, 25, -10.5),
    (50, 27, -10.5),
    (51, 7, -10.5),
    (52, 27, -10.5),
    (51, 47, -10.5),
    (57, 7, -10.5),
    (58, 27, -10.5),
    (57, 47, -10.5),
    (56, 27, -10.5),
    (63, 7, -10.5),
    (64, 27, -10.5),
    (63, 47, -10.5),
    (62, 27, -10.5),
    (69, 7, -10.5),
    (70, 27, -10.5),
    (69, 47, -10.5),
    (68, 27, -10.5),
]))
fillet2.Radius = 0.25

doc.recompute()
